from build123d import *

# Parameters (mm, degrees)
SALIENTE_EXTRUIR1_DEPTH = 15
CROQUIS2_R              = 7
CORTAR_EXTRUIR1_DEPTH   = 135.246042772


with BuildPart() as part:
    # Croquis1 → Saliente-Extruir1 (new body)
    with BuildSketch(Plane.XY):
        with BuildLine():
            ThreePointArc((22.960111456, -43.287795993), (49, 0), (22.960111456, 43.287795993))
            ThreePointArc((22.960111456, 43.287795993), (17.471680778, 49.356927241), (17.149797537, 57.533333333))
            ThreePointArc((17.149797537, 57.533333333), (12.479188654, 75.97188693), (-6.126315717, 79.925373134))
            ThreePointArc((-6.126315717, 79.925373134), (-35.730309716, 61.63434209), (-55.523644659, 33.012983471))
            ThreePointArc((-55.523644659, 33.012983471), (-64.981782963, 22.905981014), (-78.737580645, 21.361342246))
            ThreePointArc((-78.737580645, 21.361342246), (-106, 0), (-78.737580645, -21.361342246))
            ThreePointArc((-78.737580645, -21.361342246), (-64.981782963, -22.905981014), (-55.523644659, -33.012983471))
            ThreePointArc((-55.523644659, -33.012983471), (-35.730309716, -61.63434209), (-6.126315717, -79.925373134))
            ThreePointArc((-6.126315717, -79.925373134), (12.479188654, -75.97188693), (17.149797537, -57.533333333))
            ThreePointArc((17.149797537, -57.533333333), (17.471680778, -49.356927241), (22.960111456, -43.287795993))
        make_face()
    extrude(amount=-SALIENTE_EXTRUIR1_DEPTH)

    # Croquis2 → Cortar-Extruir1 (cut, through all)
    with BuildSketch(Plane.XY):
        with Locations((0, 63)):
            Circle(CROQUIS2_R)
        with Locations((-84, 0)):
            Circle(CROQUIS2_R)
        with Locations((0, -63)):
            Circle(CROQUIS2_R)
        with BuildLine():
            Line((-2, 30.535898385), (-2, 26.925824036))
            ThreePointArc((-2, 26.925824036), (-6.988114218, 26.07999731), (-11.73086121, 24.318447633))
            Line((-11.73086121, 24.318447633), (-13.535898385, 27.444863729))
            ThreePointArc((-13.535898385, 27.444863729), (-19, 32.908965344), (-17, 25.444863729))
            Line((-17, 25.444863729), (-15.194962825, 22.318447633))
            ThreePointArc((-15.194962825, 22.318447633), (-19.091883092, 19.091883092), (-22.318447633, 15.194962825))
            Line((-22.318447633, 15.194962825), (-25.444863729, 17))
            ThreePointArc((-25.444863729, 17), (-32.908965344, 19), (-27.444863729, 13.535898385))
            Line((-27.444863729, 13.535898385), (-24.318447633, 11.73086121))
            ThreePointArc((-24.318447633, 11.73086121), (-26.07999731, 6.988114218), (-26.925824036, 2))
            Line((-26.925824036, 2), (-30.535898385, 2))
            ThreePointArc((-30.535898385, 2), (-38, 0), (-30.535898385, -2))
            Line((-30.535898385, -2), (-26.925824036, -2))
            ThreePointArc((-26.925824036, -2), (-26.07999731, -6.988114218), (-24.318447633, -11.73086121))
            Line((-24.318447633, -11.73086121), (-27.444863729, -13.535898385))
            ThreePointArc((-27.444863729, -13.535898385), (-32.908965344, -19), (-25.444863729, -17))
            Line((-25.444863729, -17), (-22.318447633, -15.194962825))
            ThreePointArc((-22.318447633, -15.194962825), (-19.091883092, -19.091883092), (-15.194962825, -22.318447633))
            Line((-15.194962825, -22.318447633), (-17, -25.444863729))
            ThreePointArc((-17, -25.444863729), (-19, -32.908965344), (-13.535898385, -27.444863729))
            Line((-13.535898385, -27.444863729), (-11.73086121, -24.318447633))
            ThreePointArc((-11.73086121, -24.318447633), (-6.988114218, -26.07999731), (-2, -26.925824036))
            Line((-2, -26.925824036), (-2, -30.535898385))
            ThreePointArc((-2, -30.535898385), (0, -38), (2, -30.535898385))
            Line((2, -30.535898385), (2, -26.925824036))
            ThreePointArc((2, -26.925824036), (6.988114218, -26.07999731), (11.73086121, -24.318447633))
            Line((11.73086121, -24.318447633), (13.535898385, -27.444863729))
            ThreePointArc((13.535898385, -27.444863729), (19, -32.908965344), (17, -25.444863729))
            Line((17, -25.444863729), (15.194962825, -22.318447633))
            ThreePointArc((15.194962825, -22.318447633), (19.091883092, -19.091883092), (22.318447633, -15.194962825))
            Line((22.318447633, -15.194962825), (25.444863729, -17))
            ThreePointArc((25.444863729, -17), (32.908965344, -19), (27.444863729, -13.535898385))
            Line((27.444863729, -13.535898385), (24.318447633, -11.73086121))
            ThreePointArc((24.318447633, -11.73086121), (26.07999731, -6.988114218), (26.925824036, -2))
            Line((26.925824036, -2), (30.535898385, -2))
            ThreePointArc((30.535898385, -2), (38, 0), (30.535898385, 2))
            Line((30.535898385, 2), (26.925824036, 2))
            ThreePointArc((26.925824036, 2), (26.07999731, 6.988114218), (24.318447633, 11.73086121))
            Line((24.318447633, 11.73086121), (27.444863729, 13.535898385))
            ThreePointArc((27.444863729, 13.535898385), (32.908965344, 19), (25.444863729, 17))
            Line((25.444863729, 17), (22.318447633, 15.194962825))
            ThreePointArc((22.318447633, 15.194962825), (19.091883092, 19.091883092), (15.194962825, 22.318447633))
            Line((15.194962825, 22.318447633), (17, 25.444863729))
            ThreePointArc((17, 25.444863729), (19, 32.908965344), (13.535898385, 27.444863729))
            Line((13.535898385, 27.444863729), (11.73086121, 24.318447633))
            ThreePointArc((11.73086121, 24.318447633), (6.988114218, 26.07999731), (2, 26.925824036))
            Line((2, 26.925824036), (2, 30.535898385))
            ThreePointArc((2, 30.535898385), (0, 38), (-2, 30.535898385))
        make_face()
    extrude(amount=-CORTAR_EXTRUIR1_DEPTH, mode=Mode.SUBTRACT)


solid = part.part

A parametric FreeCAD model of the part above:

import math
import FreeCAD as App
import Part
import Sketcher
Q = App.Units.Quantity

doc = App.newDocument("Part")
params = doc.addObject("Spreadsheet::Sheet", "Params")
for row, (alias, value) in enumerate([
    ("sketch1_radius", "49 mm"),
    ("sketch1_radius2", "12 mm"),
    ("sketch1_radius3", "18 mm"),
    ("sketch1_radius4", "85 mm"),
    ("sketch1_radius5", "20 mm"),
    ("pad1_length", "15 mm"),
    ("sketch2_diameter", "14 mm"),
    ("sketch2_radius", "27 mm"),
    ("sketch2_radius2", "4 mm"),
], start=1):
    params.set(f"A{row}", alias)
    params.set(f"B{row}", "=" + value)
    params.setAlias(f"B{row}", alias)

body = doc.addObject("PartDesign::Body", "Body")

sketch1 = body.newObject("Sketcher::SketchObject", "Sketch")
sketch1.AttachmentSupport = (doc.getObject("XY_Plane"), [""])
sketch1.MapMode = "FlatFace"
sketch1.addGeometry([
    Part.ArcOfCircle(Part.Circle(App.Vector(0, 0, 0), App.Vector(0, 0, 1), 49), math.radians(-62.058248), math.radians(62.058248)),
    Part.ArcOfCircle(Part.Circle(App.Vector(28.582996, 53.888889, 0), App.Vector(0, 0, 1), 12), math.radians(162.319807), math.radians(242.058248)),
    Part.ArcOfCircle(Part.Circle(App.Vector(0, 63, 0), App.Vector(0, 0, 1), 18), math.radians(-17.680193), math.radians(109.898253)),
    Part.ArcOfCircle(Part.Circle(App.Vector(22.803508, 0, 0), App.Vector(0, 0, 1), 85), math.radians(109.898253), math.radians(157.145764)),
    Part.ArcOfCircle(Part.Circle(App.Vector(-73.953563, 40.780744, 0), App.Vector(0, 0, 1), 20), math.radians(-103.83938), math.radians(-22.854236)),
    Part.ArcOfCircle(Part.Circle(App.Vector(-84, 0, 0), App.Vector(0, 0, 1), 22), math.radians(76.16062), math.radians(283.83938)),
    Part.ArcOfCircle(Part.Circle(App.Vector(-73.953563, -40.780744, 0), App.Vector(0, 0, 1), 20), math.radians(22.854236), math.radians(103.83938)),
    Part.ArcOfCircle(Part.Circle(App.Vector(22.803508, 0, 0), App.Vector(0, 0, 1), 85), math.radians(-157.145764), math.radians(-109.898253)),
    Part.ArcOfCircle(Part.Circle(App.Vector(0, -63, 0), App.Vector(0, 0, 1), 18), math.radians(-109.898253), math.radians(17.680193)),
    Part.ArcOfCircle(Part.Circle(App.Vector(28.582996, -53.888889, 0), App.Vector(0, 0, 1), 12), math.radians(117.941752), math.radians(197.680193)),
], False)
sketch1.addConstraint([
    Sketcher.Constraint("Tangent", 0, 2, 1, 2),
    Sketcher.Constraint("Tangent", 1, 1, 2, 1),
    Sketcher.Constraint("Tangent", 2, 2, 3, 1),
    Sketcher.Constraint("Tangent", 3, 2, 4, 2),
    Sketcher.Constraint("Tangent", 4, 1, 5, 1),
    Sketcher.Constraint("Tangent", 5, 2, 6, 2),
    Sketcher.Constraint("Tangent", 6, 1, 7, 1),
    Sketcher.Constraint("Tangent", 7, 2, 8, 1),
    Sketcher.Constraint("Tangent", 8, 2, 9, 2),
    Sketcher.Constraint("Tangent", 9, 1, 0, 1),
    Sketcher.Constraint("Coincident", 0, 3, -1, 1),
    Sketcher.Constraint("Coincident", 7, 3, 3, 3),
    Sketcher.Constraint("Equal", 4, 6),
    Sketcher.Constraint("Equal", 3, 7),
    Sketcher.Constraint("Equal", 2, 8),
    Sketcher.Constraint("Equal", 1, 9),
    Sketcher.Constraint("Symmetric", 2, 3, 8, 3, -1, 1),
    Sketcher.Constraint("Symmetric", 4, 3, 6, 3, -1),
    Sketcher.Constraint("Radius", 0, Q("49 mm")),
    Sketcher.Constraint("Radius", 1, Q("12 mm")),
    Sketcher.Constraint("Radius", 2, Q("18 mm")),
    Sketcher.Constraint("Radius", 3, Q("85 mm")),
    Sketcher.Constraint("Radius", 4, Q("20 mm")),
    Sketcher.Constraint("Radius", 5, Q("22 mm")),
    Sketcher.Constraint("DistanceY", -1, 1, 2, 3, Q("63 mm")),
    Sketcher.Constraint("DistanceX", 5, 3, -1, 1, Q("84 mm")),
])
sketch1.setExpression("Constraints[18]", "Params.sketch1_radius")
sketch1.setExpression("Constraints[19]", "Params.sketch1_radius2")
sketch1.setExpression("Constraints[20]", "Params.sketch1_radius3")
sketch1.setExpression("Constraints[21]", "Params.sketch1_radius4")
sketch1.setExpression("Constraints[22]", "Params.sketch1_radius5")
pad1 = body.newObject("PartDesign::Pad", "Pad")
pad1.Profile = sketch1
pad1.setExpression("Length", "Params.pad1_length")
pad1.Reversed = True

sketch2 = body.newObject("Sketcher::SketchObject", "Sketch001")
sketch2.AttachmentSupport = (doc.getObject("XY_Plane"), [""])
sketch2.MapMode = "FlatFace"
sketch2.addGeometry([
    Part.Circle(App.Vector(0, 63, 0), App.Vector(0, 0, 1), 7),
    Part.Circle(App.Vector(-84, 0, 0), App.Vector(0, 0, 1), 7),
    Part.Circle(App.Vector(0, -63, 0), App.Vector(0, 0, 1), 7),
    Part.LineSegment(App.Vector(-2, 30.535898, 0), App.Vector(-2, 26.925824, 0)),
    Part.ArcOfCircle(Part.Circle(App.Vector(0, 0, 0), App.Vector(0, 0, 1), 27), math.radians(94.248023), math.radians(115.751977)),
    Part.LineSegment(App.Vector(-11.730861, 24.318448, 0), App.Vector(-13.535898, 27.444864, 0)),
    Part.ArcOfCircle(Part.Circle(App.Vector(-17, 29.444864, 0), App.Vector(0, 0, 1), 4), math.radians(-30), math.radians(270)),
    Part.LineSegment(App.Vector(-17, 25.444864, 0), App.Vector(-15.194963, 22.318448, 0)),
    Part.ArcOfCircle(Part.Circle(App.Vector(0, 0, 0), App.Vector(0, 0, 1), 27), math.radians(124.248023), math.radians(145.751977)),
    Part.LineSegment(App.Vector(-22.318448, 15.194963, 0), App.Vector(-25.444864, 17, 0)),
    Part.ArcOfCircle(Part.Circle(App.Vector(-29.444864, 17, 0), App.Vector(0, 0, 1), 4), math.radians(0), math.radians(300)),
    Part.LineSegment(App.Vector(-27.444864, 13.535898, 0), App.Vector(-24.318448, 11.730861, 0)),
    Part.ArcOfCircle(Part.Circle(App.Vector(0, 0, 0), App.Vector(0, 0, 1), 27), math.radians(154.248023), math.radians(175.751977)),
    Part.LineSegment(App.Vector(-26.925824, 2, 0), App.Vector(-30.535898, 2, 0)),
    Part.ArcOfCircle(Part.Circle(App.Vector(-34, 0, 0), App.Vector(0, 0, 1), 4), math.radians(30), math.radians(330)),
    Part.LineSegment(App.Vector(-30.535898, -2, 0), App.Vector(-26.925824, -2, 0)),
    Part.ArcOfCircle(Part.Circle(App.Vector(0, 0, 0), App.Vector(0, 0, 1), 27), math.radians(-175.751977), math.radians(-154.248023)),
    Part.LineSegment(App.Vector(-24.318448, -11.730861, 0), App.Vector(-27.444864, -13.535898, 0)),
    Part.ArcOfCircle(Part.Circle(App.Vector(-29.444864, -17, 0), App.Vector(0, 0, 1), 4), math.radians(60), math.radians(360)),
    Part.LineSegment(App.Vector(-25.444864, -17, 0), App.Vector(-22.318448, -15.194963, 0)),
    Part.ArcOfCircle(Part.Circle(App.Vector(0, 0, 0), App.Vector(0, 0, 1), 27), math.radians(-145.751977), math.radians(-124.248023)),
    Part.LineSegment(App.Vector(-15.194963, -22.318448, 0), App.Vector(-17, -25.444864, 0)),
    Part.ArcOfCircle(Part.Circle(App.Vector(-17, -29.444864, 0), App.Vector(0, 0, 1), 4), math.radians(90), math.radians(390)),
    Part.LineSegment(App.Vector(-13.535898, -27.444864, 0), App.Vector(-11.730861, -24.318448, 0)),
    Part.ArcOfCircle(Part.Circle(App.Vector(0, 0, 0), App.Vector(0, 0, 1), 27), math.radians(-115.751977), math.radians(-94.248023)),
    Part.LineSegment(App.Vector(-2, -26.925824, 0), App.Vector(-2, -30.535898, 0)),
    Part.ArcOfCircle(Part.Circle(App.Vector(0, -34, 0), App.Vector(0, 0, 1), 4), math.radians(120), math.radians(420)),
    Part.LineSegment(App.Vector(2, -30.535898, 0), App.Vector(2, -26.925824, 0)),
    Part.ArcOfCircle(Part.Circle(App.Vector(0, 0, 0), App.Vector(0, 0, 1), 27), math.radians(-85.751977), math.radians(-64.248023)),
    Part.LineSegment(App.Vector(11.730861, -24.318448, 0), App.Vector(13.535898, -27.444864, 0)),
    Part.ArcOfCircle(Part.Circle(App.Vector(17, -29.444864, 0), App.Vector(0, 0, 1), 4), math.radians(150), math.radians(450)),
    Part.LineSegment(App.Vector(17, -25.444864, 0), App.Vector(15.194963, -22.318448, 0)),
    Part.ArcOfCircle(Part.Circle(App.Vector(0, 0, 0), App.Vector(0, 0, 1), 27), math.radians(-55.751977), math.radians(-34.248023)),
    Part.LineSegment(App.Vector(22.318448, -15.194963, 0), App.Vector(25.444864, -17, 0)),
    Part.ArcOfCircle(Part.Circle(App.Vector(29.444864, -17, 0), App.Vector(0, 0, 1), 4), math.radians(180), math.radians(480)),
    Part.LineSegment(App.Vector(27.444864, -13.535898, 0), App.Vector(24.318448, -11.730861, 0)),
    Part.ArcOfCircle(Part.Circle(App.Vector(0, 0, 0), App.Vector(0, 0, 1), 27), math.radians(-25.751977), math.radians(-4.248023)),
    Part.LineSegment(App.Vector(26.925824, -2, 0), App.Vector(30.535898, -2, 0)),
    Part.ArcOfCircle(Part.Circle(App.Vector(34, 0, 0), App.Vector(0, 0, 1), 4), math.radians(-150), math.radians(150)),
    Part.LineSegment(App.Vector(30.535898, 2, 0), App.Vector(26.925824, 2, 0)),
    Part.ArcOfCircle(Part.Circle(App.Vector(0, 0, 0), App.Vector(0, 0, 1), 27), math.radians(4.248023), math.radians(25.751977)),
    Part.LineSegment(App.Vector(24.318448, 11.730861, 0), App.Vector(27.444864, 13.535898, 0)),
    Part.ArcOfCircle(Part.Circle(App.Vector(29.444864, 17, 0), App.Vector(0, 0, 1), 4), math.radians(-120), math.radians(180)),
    Part.LineSegment(App.Vector(25.444864, 17, 0), App.Vector(22.318448, 15.194963, 0)),
    Part.ArcOfCircle(Part.Circle(App.Vector(0, 0, 0), App.Vector(0, 0, 1), 27), math.radians(34.248023), math.radians(55.751977)),
    Part.LineSegment(App.Vector(15.194963, 22.318448, 0), App.Vector(17, 25.444864, 0)),
    Part.ArcOfCircle(Part.Circle(App.Vector(17, 29.444864, 0), App.Vector(0, 0, 1), 4), math.radians(-90), math.radians(210)),
    Part.LineSegment(App.Vector(13.535898, 27.444864, 0), App.Vector(11.730861, 24.318448, 0)),
    Part.ArcOfCircle(Part.Circle(App.Vector(0, 0, 0), App.Vector(0, 0, 1), 27), math.radians(64.248023), math.radians(85.751977)),
    Part.LineSegment(App.Vector(2, 26.925824, 0), App.Vector(2, 30.535898, 0)),
    Part.ArcOfCircle(Part.Circle(App.Vector(0, 34, 0), App.Vector(0, 0, 1), 4), math.radians(-60), math.radians(240)),
], False)
sketch2.addConstraint([
    Sketcher.Constraint("Coincident", 3, 2, 4, 1),
    Sketcher.Constraint("Coincident", 4, 2, 5, 1),
    Sketcher.Constraint("Coincident", 5, 2, 6, 1),
    Sketcher.Constraint("Coincident", 6, 2, 7, 1),
    Sketcher.Constraint("Coincident", 7, 2, 8, 1),
    Sketcher.Constraint("Coincident", 8, 2, 9, 1),
    Sketcher.Constraint("Coincident", 9, 2, 10, 1),
    Sketcher.Constraint("Coincident", 10, 2, 11, 1),
    Sketcher.Constraint("Coincident", 11, 2, 12, 1),
    Sketcher.Constraint("Coincident", 12, 2, 13, 1),
    Sketcher.Constraint("Coincident", 13, 2, 14, 1),
    Sketcher.Constraint("Coincident", 14, 2, 15, 1),
    Sketcher.Constraint("Coincident", 15, 2, 16, 1),
    Sketcher.Constraint("Coincident", 16, 2, 17, 1),
    Sketcher.Constraint("Coincident", 17, 2, 18, 1),
    Sketcher.Constraint("Coincident", 18, 2, 19, 1),
    Sketcher.Constraint("Coincident", 19, 2, 20, 1),
    Sketcher.Constraint("Coincident", 20, 2, 21, 1),
    Sketcher.Constraint("Coincident", 21, 2, 22, 1),
    Sketcher.Constraint("Coincident", 22, 2, 23, 1),
    Sketcher.Constraint("Coincident", 23, 2, 24, 1),
    Sketcher.Constraint("Coincident", 24, 2, 25, 1),
    Sketcher.Constraint("Coincident", 25, 2, 26, 1),
    Sketcher.Constraint("Coincident", 26, 2, 27, 1),
    Sketcher.Constraint("Coincident", 27, 2, 28, 1),
    Sketcher.Constraint("Coincident", 28, 2, 29, 1),
    Sketcher.Constraint("Coincident", 29, 2, 30, 1),
    Sketcher.Constraint("Coincident", 30, 2, 31, 1),
    Sketcher.Constraint("Coincident", 31, 2, 32, 1),
    Sketcher.Constraint("Coincident", 32, 2, 33, 1),
    Sketcher.Constraint("Coincident", 33, 2, 34, 1),
    Sketcher.Constraint("Coincident", 34, 2, 35, 1),
    Sketcher.Constraint("Coincident", 35, 2, 36, 1),
    Sketcher.Constraint("Coincident", 36, 2, 37, 1),
    Sketcher.Constraint("Coincident", 37, 2, 38, 1),
    Sketcher.Constraint("Coincident", 38, 2, 39, 1),
    Sketcher.Constraint("Coincident", 39, 2, 40, 1),
    Sketcher.Constraint("Coincident", 40, 2, 41, 1),
    Sketcher.Constraint("Coincident", 41, 2, 42, 1),
    Sketcher.Constraint("Coincident", 42, 2, 43, 1),
    Sketcher.Constraint("Coincident", 43, 2, 44, 1),
    Sketcher.Constraint("Coincident", 44, 2, 45, 1),
    Sketcher.Constraint("Coincident", 45, 2, 46, 1),
    Sketcher.Constraint("Coincident", 46, 2, 47, 1),
    Sketcher.Constraint("Coincident", 47, 2, 48, 1),
    Sketcher.Constraint("Coincident", 48, 2, 49, 1),
    Sketcher.Constraint("Coincident", 49, 2, 50, 1),
    Sketcher.Constraint("Coincident", 50, 2, 3, 1),
    Sketcher.Constraint("Vertical", 3),
    Sketcher.Constraint("Horizontal", 13),
    Sketcher.Constraint("Horizontal", 15),
    Sketcher.Constraint("Vertical", 25),
    Sketcher.Constraint("Vertical", 27),
    Sketcher.Constraint("Horizontal", 37),
    Sketcher.Constraint("Horizontal", 39),
    Sketcher.Constraint("Vertical", 49),
    Sketcher.Constraint("Coincident", 4, 3, -1, 1),
    Sketcher.Constraint("Coincident", 8, 3, -1, 1),
    Sketcher.Constraint("Coincident", 12, 3, -1, 1),
    Sketcher.Constraint("Coincident", 16, 3, -1, 1),
    Sketcher.Constraint("Coincident", 20, 3, -1, 1),
    Sketcher.Constraint("Coincident", 24, 3, -1, 1),
    Sketcher.Constraint("Coincident", 28, 3, -1, 1),
    Sketcher.Constraint("Coincident", 32, 3, -1, 1),
    Sketcher.Constraint("Coincident", 36, 3, -1, 1),
    Sketcher.Constraint("Coincident", 40, 3, -1, 1),
    Sketcher.Constraint("Coincident", 44, 3, -1, 1),
    Sketcher.Constraint("Coincident", 48, 3, -1, 1),
    Sketcher.Constraint("Equal", 0, 1),
    Sketcher.Constraint("Equal", 1, 2),
    Sketcher.Constraint("Equal", 4, 8),
    Sketcher.Constraint("Equal", 6, 10),
    Sketcher.Constraint("Equal", 8, 12),
    Sketcher.Constraint("Equal", 10, 14),
    Sketcher.Constraint("Equal", 12, 16),
    Sketcher.Constraint("Equal", 14, 18),
    Sketcher.Constraint("Equal", 16, 20),
    Sketcher.Constraint("Equal", 18, 22),
    Sketcher.Constraint("Equal", 20, 24),
    Sketcher.Constraint("Equal", 22, 26),
    Sketcher.Constraint("Equal", 24, 28),
    Sketcher.Constraint("Equal", 26, 30),
    Sketcher.Constraint("Equal", 28, 32),
    Sketcher.Constraint("Equal", 30, 34),
    Sketcher.Constraint("Equal", 32, 36),
    Sketcher.Constraint("Equal", 34, 38),
    Sketcher.Constraint("Equal", 36, 40),
    Sketcher.Constraint("Equal", 38, 42),
    Sketcher.Constraint("Equal", 40, 44),
    Sketcher.Constraint("Equal", 42, 46),
    Sketcher.Constraint("Equal", 44, 48),
    Sketcher.Constraint("Equal", 46, 50),
    Sketcher.Constraint("Symmetric", 0, 3, 2, 3, -1, 1),
    Sketcher.Constraint("Symmetric", 6, 3, 30, 3, -1, 1),
    Sketcher.Constraint("Symmetric", 10, 3, 34, 3, -1, 1),
    Sketcher.Constraint("Symmetric", 14, 3, 38, 3, -1, 1),
    Sketcher.Constraint("Symmetric", 18, 3, 42, 3, -1, 1),
    Sketcher.Constraint("Symmetric", 22, 3, 46, 3, -1, 1),
    Sketcher.Constraint("Symmetric", 26, 3, 50, 3, -1, 1),
    Sketcher.Constraint("Symmetric", 22, 3, 30, 3, -2),
    Sketcher.Constraint("Symmetric", 18, 3, 34, 3, -2),
    Sketcher.Constraint("Symmetric", 25, 2, 26, 2, -2),
    Sketcher.Constraint("Symmetric", 14, 2, 37, 2, -2),
    Sketcher.Constraint("PointOnObject", 0, 3, -2),
    Sketcher.Constraint("PointOnObject", 1, 3, -1),
    Sketcher.Constraint("Parallel", 5, 7),
    Sketcher.Constraint("Parallel", 9, 11),
    Sketcher.Constraint("Perpendicular", 7, 17),
    Sketcher.Constraint("Parallel", 17, 19),
    Sketcher.Constraint("Perpendicular", 11, 21),
    Sketcher.Constraint("Parallel", 21, 23),
    Sketcher.Constraint("Perpendicular", 19, 29),
    Sketcher.Constraint("Parallel", 29, 31),
    Sketcher.Constraint("Perpendicular", 23, 33),
    Sketcher.Constraint("Parallel", 33, 35),
    Sketcher.Constraint("Perpendicular", 31, 41),
    Sketcher.Constraint("Parallel", 41, 43),
    Sketcher.Constraint("Perpendicular", 35, 45),
    Sketcher.Constraint("Parallel", 45, 47),
    Sketcher.Constraint("Horizontal", 42, 3, 9, 2),
    Sketcher.Constraint("Horizontal", 34, 3, 18, 2),
    Sketcher.Constraint("Horizontal", 23, 2, 28, 2),
    Sketcher.Constraint("Horizontal", 22, 2, 29, 2),
    Sketcher.Constraint("Horizontal", 20, 2, 31, 2),
    Sketcher.Constraint("Horizontal", 19, 2, 32, 2),
    Sketcher.Constraint("Horizontal", 17, 2, 34, 2),
    Sketcher.Constraint("Horizontal", 13, 2, 38, 2),
    Sketcher.Constraint("Horizontal", 11, 2, 40, 2),
    Sketcher.Constraint("Horizontal", 9, 2, 42, 2),
    Sketcher.Constraint("Horizontal", 7, 2, 44, 2),
    Sketcher.Constraint("Horizontal", 5, 2, 46, 2),
    Sketcher.Constraint("Horizontal", 3, 2, 48, 2),
    Sketcher.Constraint("Vertical", 22, 3, 6, 2),
    Sketcher.Constraint("Vertical", 13, 2, 14, 2),
    Sketcher.Constraint("Vertical", 11, 2, 16, 2),
    Sketcher.Constraint("Vertical", 7, 2, 20, 2),
    Sketcher.Constraint("Vertical", 5, 2, 22, 2),
    Sketcher.Constraint("Vertical", 3, 2, 24, 2),
    Sketcher.Constraint("Equal", 39, 3),
    Sketcher.Constraint("Equal", 5, 7),
    Sketcher.Constraint("Equal", 7, 9),
    Sketcher.Constraint("Equal", 9, 11),
    Sketcher.Constraint("Diameter", 0, Q("14 mm")),
    Sketcher.Constraint("Radius", 4, Q("27 mm")),
    Sketcher.Constraint("Radius", 6, Q("4 mm")),
    Sketcher.Constraint("Angle", 5, Q("120 deg")),
    Sketcher.Constraint("DistanceY", -1, 1, 0, 3, Q("63 mm")),
    Sketcher.Constraint("DistanceX", 1, 3, -1, 1, Q("84 mm")),
    Sketcher.Constraint("DistanceX", 6, 3, -1, 1, Q("17 mm")),
    Sketcher.Constraint("DistanceY", -1, 1, 10, 3, Q("17 mm")),
    Sketcher.Constraint("DistanceX", 14, 3, -1, 1, Q("34 mm")),
    Sketcher.Constraint("DistanceY", 26, 3, -1, 1, Q("34 mm")),
    Sketcher.Constraint("DistanceX", 3, 2, -1, 1, Q("2 mm")),
    Sketcher.Constraint("DistanceX", 5, 2, -1, 1, Q("13.535898 mm")),
])
sketch2.setExpression("Constraints[142]", "Params.sketch2_diameter")
sketch2.setExpression("Constraints[143]", "Params.sketch2_radius")
sketch2.setExpression("Constraints[144]", "Params.sketch2_radius2")
pocket1 = body.newObject("PartDesign::Pocket", "Pocket")
pocket1.Profile = sketch2
pocket1.Type = "ThroughAll"

doc.recompute()
